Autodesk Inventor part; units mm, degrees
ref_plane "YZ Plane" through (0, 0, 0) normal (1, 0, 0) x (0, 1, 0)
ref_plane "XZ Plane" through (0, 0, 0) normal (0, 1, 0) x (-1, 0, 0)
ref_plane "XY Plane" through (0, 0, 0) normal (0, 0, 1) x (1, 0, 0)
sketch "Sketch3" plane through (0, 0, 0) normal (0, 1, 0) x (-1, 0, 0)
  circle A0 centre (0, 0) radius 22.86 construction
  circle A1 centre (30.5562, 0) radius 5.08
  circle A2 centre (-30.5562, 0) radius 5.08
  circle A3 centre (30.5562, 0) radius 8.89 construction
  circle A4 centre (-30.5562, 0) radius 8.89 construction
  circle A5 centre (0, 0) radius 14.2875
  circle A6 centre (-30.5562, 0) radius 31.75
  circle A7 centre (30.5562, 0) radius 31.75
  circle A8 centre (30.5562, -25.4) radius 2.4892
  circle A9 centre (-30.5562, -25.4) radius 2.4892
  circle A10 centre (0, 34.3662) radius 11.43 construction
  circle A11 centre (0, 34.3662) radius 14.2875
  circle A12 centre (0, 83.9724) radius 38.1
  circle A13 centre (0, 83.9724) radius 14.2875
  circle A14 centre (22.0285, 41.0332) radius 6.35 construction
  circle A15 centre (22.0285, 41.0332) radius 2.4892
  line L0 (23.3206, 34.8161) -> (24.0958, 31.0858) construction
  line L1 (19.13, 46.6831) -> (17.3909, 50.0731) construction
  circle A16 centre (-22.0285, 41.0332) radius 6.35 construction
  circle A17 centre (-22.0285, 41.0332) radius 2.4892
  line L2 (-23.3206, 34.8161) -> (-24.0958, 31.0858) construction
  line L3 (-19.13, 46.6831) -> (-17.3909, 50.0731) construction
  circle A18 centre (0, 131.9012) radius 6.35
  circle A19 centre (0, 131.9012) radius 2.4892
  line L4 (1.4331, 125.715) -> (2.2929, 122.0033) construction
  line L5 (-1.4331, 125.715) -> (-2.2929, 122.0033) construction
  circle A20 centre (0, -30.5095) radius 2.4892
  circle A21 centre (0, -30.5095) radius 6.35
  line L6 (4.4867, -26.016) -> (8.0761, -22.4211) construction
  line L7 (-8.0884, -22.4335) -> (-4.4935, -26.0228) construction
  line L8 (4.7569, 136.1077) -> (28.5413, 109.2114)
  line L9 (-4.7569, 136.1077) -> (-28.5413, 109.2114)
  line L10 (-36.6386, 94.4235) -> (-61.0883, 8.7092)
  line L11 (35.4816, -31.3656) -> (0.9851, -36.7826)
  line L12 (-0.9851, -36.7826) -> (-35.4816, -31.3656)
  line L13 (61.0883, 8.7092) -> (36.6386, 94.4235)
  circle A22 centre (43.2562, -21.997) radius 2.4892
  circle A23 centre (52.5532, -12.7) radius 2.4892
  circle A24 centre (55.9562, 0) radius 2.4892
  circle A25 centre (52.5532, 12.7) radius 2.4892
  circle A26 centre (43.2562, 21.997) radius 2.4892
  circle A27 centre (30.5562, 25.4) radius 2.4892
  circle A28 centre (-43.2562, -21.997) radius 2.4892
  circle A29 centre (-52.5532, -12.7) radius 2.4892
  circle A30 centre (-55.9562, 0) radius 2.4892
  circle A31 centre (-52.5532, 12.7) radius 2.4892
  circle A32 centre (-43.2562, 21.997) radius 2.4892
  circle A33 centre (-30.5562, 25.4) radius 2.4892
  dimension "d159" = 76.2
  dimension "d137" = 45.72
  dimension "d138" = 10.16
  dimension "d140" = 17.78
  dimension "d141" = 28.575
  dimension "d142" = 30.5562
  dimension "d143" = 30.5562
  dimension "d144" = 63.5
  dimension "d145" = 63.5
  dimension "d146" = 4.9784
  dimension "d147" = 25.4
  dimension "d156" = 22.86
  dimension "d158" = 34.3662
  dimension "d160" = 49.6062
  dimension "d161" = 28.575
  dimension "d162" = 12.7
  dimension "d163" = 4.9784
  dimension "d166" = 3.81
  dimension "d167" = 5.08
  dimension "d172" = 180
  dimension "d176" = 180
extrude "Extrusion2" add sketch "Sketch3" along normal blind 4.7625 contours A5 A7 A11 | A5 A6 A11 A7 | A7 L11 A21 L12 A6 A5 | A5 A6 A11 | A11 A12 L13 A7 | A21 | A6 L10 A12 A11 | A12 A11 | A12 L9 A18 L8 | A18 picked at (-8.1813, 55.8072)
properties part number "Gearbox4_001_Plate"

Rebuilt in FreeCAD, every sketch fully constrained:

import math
import FreeCAD as App
import Part
import Sketcher
from FreeCAD import Vector
Q = App.Units.Quantity

doc = App.newDocument("Part")
body = doc.addObject("PartDesign::Body", "Body")

# Sketch on XZ plane
sketch1 = body.newObject("Sketcher::SketchObject", "Sketch")
sketch1.AttachmentSupport = (doc.getObject("XZ_Plane"), [""])
sketch1.MapMode = "FlatFace"
sketch1.addGeometry([
    Part.LineSegment(Vector(-61.1, 8.7, 0), Vector(-36.6, 94.4, 0)),  # 0
    Part.ArcOfCircle(Part.Circle(Vector(0, 84, 0), Vector(0, 0, 1), 38.1), math.radians(139), math.radians(164)),  # 1
    Part.LineSegment(Vector(-28.5, 109.2, 0), Vector(-4.8, 136.1, 0)),  # 2
    Part.ArcOfCircle(Part.Circle(Vector(0, 131.9, 0), Vector(0, 0, 1), 6.3), math.radians(41), math.radians(139)),  # 3
    Part.LineSegment(Vector(4.8, 136.1, 0), Vector(28.5, 109.2, 0)),  # 4
    Part.ArcOfCircle(Part.Circle(Vector(0, 84, 0), Vector(0, 0, 1), 38.1), math.radians(16), math.radians(41)),  # 5
    Part.LineSegment(Vector(36.6, 94.4, 0), Vector(61.1, 8.7, 0)),  # 6
    Part.ArcOfCircle(Part.Circle(Vector(30.6, 0, 0), Vector(0, 0, 1), 31.8), math.radians(-81), math.radians(16)),  # 7
    Part.LineSegment(Vector(35.5, -31.4, 0), Vector(1, -36.8, 0)),  # 8
    Part.ArcOfCircle(Part.Circle(Vector(0, -30.5, 0), Vector(0, 0, 1), 6.3), math.radians(-98.92), math.radians(-81.08)),  # 9
    Part.LineSegment(Vector(-1, -36.8, 0), Vector(-35.5, -31.4, 0)),  # 10
    Part.ArcOfCircle(Part.Circle(Vector(-30.6, 0, 0), Vector(0, 0, 1), 31.8), math.radians(164), math.radians(261)),  # 11
    Part.Circle(Vector(0, 0, 0), Vector(0, 0, 1), 14.3),  # 12
    Part.Circle(Vector(0, 34.4, 0), Vector(0, 0, 1), 14.3),  # 13
    Part.Circle(Vector(-30.6, -25.4, 0), Vector(0, 0, 1), 2.5),  # 14
    Part.Circle(Vector(-30.6, 0, 0), Vector(0, 0, 1), 5.1),  # 15
    Part.Circle(Vector(-43.3, -22, 0), Vector(0, 0, 1), 2.5),  # 16
    Part.Circle(Vector(-52.6, -12.7, 0), Vector(0, 0, 1), 2.5),  # 17
    Part.Circle(Vector(-56, 0, 0), Vector(0, 0, 1), 2.5),  # 18
    Part.Circle(Vector(-30.6, 25.4, 0), Vector(0, 0, 1), 2.5),  # 19
    Part.Circle(Vector(-43.3, 22, 0), Vector(0, 0, 1), 2.5),  # 20
    Part.Circle(Vector(-52.6, 12.7, 0), Vector(0, 0, 1), 2.5),  # 21
    Part.Circle(Vector(-22, 41, 0), Vector(0, 0, 1), 2.5),  # 22
    Part.Circle(Vector(43.3, 22, 0), Vector(0, 0, 1), 2.5),  # 23
    Part.Circle(Vector(30.6, 25.4, 0), Vector(0, 0, 1), 2.5),  # 24
    Part.Circle(Vector(43.3, -22, 0), Vector(0, 0, 1), 2.5),  # 25
    Part.Circle(Vector(52.6, -12.7, 0), Vector(0, 0, 1), 2.5),  # 26
    Part.Circle(Vector(56, 0, 0), Vector(0, 0, 1), 2.5),  # 27
    Part.Circle(Vector(30.6, -25.4, 0), Vector(0, 0, 1), 2.5),  # 28
    Part.Circle(Vector(30.6, 0, 0), Vector(0, 0, 1), 5.1),  # 29
    Part.Circle(Vector(52.6, 12.7, 0), Vector(0, 0, 1), 2.5),  # 30
    Part.Circle(Vector(0, 84, 0), Vector(0, 0, 1), 14.3),  # 31
    Part.Circle(Vector(0, -30.5, 0), Vector(0, 0, 1), 2.5),  # 32
    Part.Circle(Vector(22, 41, 0), Vector(0, 0, 1), 2.5),  # 33
    Part.Circle(Vector(0, 131.9, 0), Vector(0, 0, 1), 2.5),  # 34
], False)
sketch1.addConstraint([
    Sketcher.Constraint("Tangent", 0, 2, 1, 2),
    Sketcher.Constraint("Tangent", 1, 1, 2, 1),
    Sketcher.Constraint("Tangent", 2, 2, 3, 2),
    Sketcher.Constraint("Tangent", 3, 1, 4, 1),
    Sketcher.Constraint("Tangent", 4, 2, 5, 2),
    Sketcher.Constraint("Tangent", 5, 1, 6, 1),
    Sketcher.Constraint("Tangent", 6, 2, 7, 2),
    Sketcher.Constraint("Tangent", 7, 1, 8, 1),
    Sketcher.Constraint("Tangent", 8, 2, 9, 2),
    Sketcher.Constraint("Tangent", 9, 1, 10, 1),
    Sketcher.Constraint("Tangent", 10, 2, 11, 2),
    Sketcher.Constraint("Tangent", 11, 1, 0, 1),
    Sketcher.Constraint("Coincident", 12, 3, -1, 1),
    Sketcher.Constraint("Coincident", 5, 3, 1, 3),
    Sketcher.Constraint("Coincident", 15, 3, 11, 3),
    Sketcher.Constraint("Coincident", 29, 3, 7, 3),
    Sketcher.Constraint("Coincident", 31, 3, 1, 3),
    Sketcher.Constraint("Coincident", 32, 3, 9, 3),
    Sketcher.Constraint("Coincident", 34, 3, 3, 3),
    Sketcher.Constraint("Equal", 1, 5),
    Sketcher.Constraint("Equal", 3, 9),
    Sketcher.Constraint("Equal", 7, 11),
    Sketcher.Constraint("Equal", 12, 13),
    Sketcher.Constraint("Equal", 14, 16),
    Sketcher.Constraint("Equal", 16, 17),
    Sketcher.Constraint("Equal", 17, 18),
    Sketcher.Constraint("Equal", 18, 19),
    Sketcher.Constraint("Equal", 19, 20),
    Sketcher.Constraint("Equal", 20, 21),
    Sketcher.Constraint("Equal", 21, 22),
    Sketcher.Constraint("Equal", 22, 23),
    Sketcher.Constraint("Equal", 23, 24),
    Sketcher.Constraint("Equal", 24, 25),
    Sketcher.Constraint("Equal", 25, 26),
    Sketcher.Constraint("Equal", 26, 27),
    Sketcher.Constraint("Equal", 27, 28),
    Sketcher.Constraint("Equal", 15, 29),
    Sketcher.Constraint("Equal", 28, 30),
    Sketcher.Constraint("Equal", 13, 31),
    Sketcher.Constraint("Equal", 30, 32),
    Sketcher.Constraint("Equal", 32, 33),
    Sketcher.Constraint("Equal", 33, 34),
    Sketcher.Constraint("Symmetric", 7, 3, 11, 3, -1, 1),
    Sketcher.Constraint("Symmetric", 16, 3, 23, 3, -1, 1),
    Sketcher.Constraint("Symmetric", 14, 3, 24, 3, -1, 1),
    Sketcher.Constraint("Symmetric", 20, 3, 25, 3, -1, 1),
    Sketcher.Constraint("Symmetric", 21, 3, 26, 3, -1, 1),
    Sketcher.Constraint("Symmetric", 18, 3, 27, 3, -1, 1),
    Sketcher.Constraint("Symmetric", 19, 3, 28, 3, -1, 1),
    Sketcher.Constraint("Symmetric", 17, 3, 30, 3, -1, 1),
    Sketcher.Constraint("Symmetric", 20, 3, 23, 3, -2),
    Sketcher.Constraint("Symmetric", 19, 3, 24, 3, -2),
    Sketcher.Constraint("Symmetric", 17, 3, 26, 3, -2),
    Sketcher.Constraint("Symmetric", 22, 3, 33, 3, -2),
    Sketcher.Constraint("Symmetric", 2, 2, 3, 1, -2),
    Sketcher.Constraint("Symmetric", 8, 2, 9, 1, -2),
    Sketcher.Constraint("PointOnObject", 13, 3, -2),
    Sketcher.Constraint("PointOnObject", 18, 3, -1),
    Sketcher.Constraint("Vertical", 11, 3, 14, 3),
    Sketcher.Constraint("Diameter", 15, Q("0.4 in")),
    Sketcher.Constraint("Radius", 1, Q("1.5 in")),
    Sketcher.Constraint("Radius", 3, Q("0.25 in")),
    Sketcher.Constraint("Radius", 7, Q("1.25 in")),
    Sketcher.Constraint("Diameter", 12, Q("1.125 in")),
    Sketcher.Constraint("Diameter", 14, Q("0.196 in")),
    Sketcher.Constraint("DistanceY", 14, 3, -1, 1, Q("1 in")),
    Sketcher.Constraint("DistanceX", 18, 3, 11, 3, Q("1 in")),
    Sketcher.Constraint("DistanceY", 17, 3, -1, 1, Q("0.5 in")),
    Sketcher.Constraint("DistanceX", 16, 3, 14, 3, Q("0.5 in")),
    Sketcher.Constraint("DistanceX", -1, 1, 7, 3, Q("1.203 in")),
    Sketcher.Constraint("DistanceY", -1, 1, 13, 3, Q("1.353 in")),
    Sketcher.Constraint("DistanceY", 13, 3, 1, 3, Q("1.953 in")),
    Sketcher.Constraint("DistanceY", 0, 2, 3, 3, Q("1.4755 in")),
    Sketcher.Constraint("DistanceX", 7, 1, 26, 3, Q("0.6721 in")),
    Sketcher.Constraint("Distance", 8, 34.9192),
    Sketcher.Constraint("DistanceY", 16, 3, -1, 1, 21.997),
    Sketcher.Constraint("DistanceX", 22, 3, -1, 1, 22.0285),
    Sketcher.Constraint("DistanceY", -1, 1, 22, 3, 41.0332),
])
pad1 = body.newObject("PartDesign::Pad", "Pad")
pad1.Profile = sketch1
pad1.Length = Q("0.1875 in")
pad1.Reversed = True

doc.recompute()
